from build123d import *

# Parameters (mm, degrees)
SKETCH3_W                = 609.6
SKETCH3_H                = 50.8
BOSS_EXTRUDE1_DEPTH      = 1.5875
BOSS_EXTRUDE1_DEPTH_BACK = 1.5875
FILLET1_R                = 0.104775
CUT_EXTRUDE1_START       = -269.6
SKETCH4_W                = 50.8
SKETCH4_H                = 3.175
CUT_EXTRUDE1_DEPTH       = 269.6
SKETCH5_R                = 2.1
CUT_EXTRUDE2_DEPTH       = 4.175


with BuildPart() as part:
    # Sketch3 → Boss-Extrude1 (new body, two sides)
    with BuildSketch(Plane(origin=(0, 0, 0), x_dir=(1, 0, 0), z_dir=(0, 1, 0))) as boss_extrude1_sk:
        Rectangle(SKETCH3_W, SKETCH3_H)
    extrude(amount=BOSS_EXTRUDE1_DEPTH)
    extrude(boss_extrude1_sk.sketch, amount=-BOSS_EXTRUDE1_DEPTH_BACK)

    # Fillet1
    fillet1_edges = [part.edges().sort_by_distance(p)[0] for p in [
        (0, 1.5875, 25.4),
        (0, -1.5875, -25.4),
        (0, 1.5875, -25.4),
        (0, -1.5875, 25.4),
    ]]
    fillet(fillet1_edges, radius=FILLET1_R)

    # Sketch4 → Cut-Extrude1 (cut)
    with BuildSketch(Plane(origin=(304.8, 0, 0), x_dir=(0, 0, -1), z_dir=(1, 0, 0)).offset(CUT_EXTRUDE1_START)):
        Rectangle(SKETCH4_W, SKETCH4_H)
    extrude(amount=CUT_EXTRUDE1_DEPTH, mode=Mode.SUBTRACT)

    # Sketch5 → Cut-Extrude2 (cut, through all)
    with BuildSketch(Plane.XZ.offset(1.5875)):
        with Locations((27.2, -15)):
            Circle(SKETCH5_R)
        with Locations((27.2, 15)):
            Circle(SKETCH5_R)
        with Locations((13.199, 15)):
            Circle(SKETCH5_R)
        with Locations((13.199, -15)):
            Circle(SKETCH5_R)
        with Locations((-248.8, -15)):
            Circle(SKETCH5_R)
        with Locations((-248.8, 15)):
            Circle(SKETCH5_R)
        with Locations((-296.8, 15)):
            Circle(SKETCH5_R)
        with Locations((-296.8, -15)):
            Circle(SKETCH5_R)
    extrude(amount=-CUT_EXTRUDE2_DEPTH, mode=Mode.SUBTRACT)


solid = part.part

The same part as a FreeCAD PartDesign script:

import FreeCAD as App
import Part
import Sketcher

V = App.Vector
Q = App.Units.Quantity


def edges_at(feature, points):
    """Names of the edges that pass closest to the given points."""
    edges = feature.Shape.Edges
    near = lambda p: min(range(len(edges)), key=lambda i: edges[i].distToShape(Part.Vertex(*p))[0])
    return sorted({f"Edge{near(p) + 1}" for p in points})


def add_polygon(sketch, points):
    """Adds a closed chain of lines whose ends are joined by coincident constraints."""
    first, n = sketch.GeometryCount, len(points)
    for a, b in zip(points, points[1:] + points[:1]):
        sketch.addGeometry(Part.LineSegment(App.Vector(*a, 0), App.Vector(*b, 0)), False)
    for i in range(n):
        sketch.addConstraint(Sketcher.Constraint("Coincident", first + i, 2, first + (i + 1) % n, 1))

doc = App.newDocument("Part")
body = doc.addObject("PartDesign::Body", "Body")

# Sketch on XZ plane
sketch1 = body.newObject("Sketcher::SketchObject", "Sketch")
sketch1.AttachmentSupport = (doc.getObject("XZ_Plane"), [""])
sketch1.MapMode = "FlatFace"
add_polygon(sketch1, [(-305, -25), (-305, 25), (305, 25), (305, -25)])  # lines 0-3
sketch1.addConstraint([
    Sketcher.Constraint("Vertical", 0),
    Sketcher.Constraint("Horizontal", 1),
    Sketcher.Constraint("Vertical", 2),
    Sketcher.Constraint("Horizontal", 3),
    Sketcher.Constraint("Symmetric", 0, 2, 2, 2, -1, 1),
    Sketcher.Constraint("DistanceX", 1, 1, 1, 2, Q("24 in")),
    Sketcher.Constraint("DistanceY", 0, 1, 0, 2, Q("2 in")),
])
pad1 = body.newObject("PartDesign::Pad", "Pad")
pad1.Profile = sketch1
pad1.Type = "TwoLengths"
pad1.Length = Q("0.0625 in")
pad1.Length2 = Q("0.0625 in")
pad1.Reversed = True
doc.recompute()

fillet = body.newObject("PartDesign::Fillet", "Fillet")
fillet.Base = (pad1, edges_at(pad1, [
    (0, 1.587, 25.4),
    (0, -1.587, -25.4),
    (0, 1.587, -25.4),
    (0, -1.587, 25.4),
]))
fillet.Radius = 0.104775

# Sketch on YZ plane
sketch2 = body.newObject("Sketcher::SketchObject", "Sketch001")
sketch2.AttachmentSupport = (doc.getObject("YZ_Plane"), [""])
sketch2.MapMode = "FlatFace"
sketch2.AttachmentOffset = App.Placement(V(0, 0, 35.2), App.Rotation())
add_polygon(sketch2, [(1.6, 25.4), (-1.6, 25.4), (-1.6, -25.4), (1.6, -25.4)])  # lines 0-3
sketch2.addConstraint([
    Sketcher.Constraint("Horizontal", 0),
    Sketcher.Constraint("Vertical", 1),
    Sketcher.Constraint("Horizontal", 2),
    Sketcher.Constraint("Vertical", 3),
    Sketcher.Constraint("Symmetric", 0, 2, 2, 2, -1, 1),
    Sketcher.Constraint("DistanceY", 1, 2, 1, 1, Q("2 in")),
    Sketcher.Constraint("DistanceX", 0, 2, 0, 1, Q("0.125 in")),
])
pocket1 = body.newObject("PartDesign::Pocket", "Pocket")
pocket1.Profile = sketch2
pocket1.Length = 269.6
pocket1.Reversed = True

# Sketch on XZ plane
sketch3 = body.newObject("Sketcher::SketchObject", "Sketch002")
sketch3.AttachmentSupport = (doc.getObject("XZ_Plane"), [""])
sketch3.MapMode = "FlatFace"
sketch3.AttachmentOffset = App.Placement(V(0, 0, 0.0625 * 25.4), App.Rotation())
sketch3.addGeometry([
    Part.Circle(V(27.2, -15, 0), V(0, 0, 1), 2.1),  # 0
    Part.Circle(V(27.2, 15, 0), V(0, 0, 1), 2.1),  # 1
    Part.Circle(V(13.2, 15, 0), V(0, 0, 1), 2.1),  # 2
    Part.Circle(V(13.2, -15, 0), V(0, 0, 1), 2.1),  # 3
    Part.Circle(V(-248.8, -15, 0), V(0, 0, 1), 2.1),  # 4
    Part.Circle(V(-248.8, 15, 0), V(0, 0, 1), 2.1),  # 5
    Part.Circle(V(-296.8, 15, 0), V(0, 0, 1), 2.1),  # 6
    Part.Circle(V(-296.8, -15, 0), V(0, 0, 1), 2.1),  # 7
], False)
sketch3.addConstraint([
    Sketcher.Constraint("Equal", 0, 1),
    Sketcher.Constraint("Equal", 1, 2),
    Sketcher.Constraint("Equal", 2, 3),
    Sketcher.Constraint("Equal", 3, 4),
    Sketcher.Constraint("Equal", 4, 5),
    Sketcher.Constraint("Equal", 5, 6),
    Sketcher.Constraint("Equal", 6, 7),
    Sketcher.Constraint("Symmetric", 0, 3, 1, 3, -1),
    Sketcher.Constraint("Symmetric", 2, 3, 3, 3, -1),
    Sketcher.Constraint("Symmetric", 4, 3, 5, 3, -1),
    Sketcher.Constraint("Symmetric", 6, 3, 7, 3, -1),
    Sketcher.Constraint("Horizontal", 1, 3, 2, 3),
    Sketcher.Constraint("Horizontal", 3, 3, 4, 3),
    Sketcher.Constraint("Horizontal", 5, 3, 6, 3),
    Sketcher.Constraint("Diameter", 0, 4.2),
    Sketcher.Constraint("DistanceX", -1, 1, 0, 3, 27.2),
    Sketcher.Constraint("DistanceY", 0, 3, -1, 1, 15.0),
    Sketcher.Constraint("DistanceX", -1, 1, 2, 3, 13.199),
    Sketcher.Constraint("DistanceX", 4, 3, -1, 1, 248.8),
    Sketcher.Constraint("DistanceX", 6, 3, -1, 1, 296.8),
])
pocket2 = body.newObject("PartDesign::Pocket", "Pocket001")
pocket2.Profile = sketch3
pocket2.Type = "ThroughAll"

doc.recompute()
